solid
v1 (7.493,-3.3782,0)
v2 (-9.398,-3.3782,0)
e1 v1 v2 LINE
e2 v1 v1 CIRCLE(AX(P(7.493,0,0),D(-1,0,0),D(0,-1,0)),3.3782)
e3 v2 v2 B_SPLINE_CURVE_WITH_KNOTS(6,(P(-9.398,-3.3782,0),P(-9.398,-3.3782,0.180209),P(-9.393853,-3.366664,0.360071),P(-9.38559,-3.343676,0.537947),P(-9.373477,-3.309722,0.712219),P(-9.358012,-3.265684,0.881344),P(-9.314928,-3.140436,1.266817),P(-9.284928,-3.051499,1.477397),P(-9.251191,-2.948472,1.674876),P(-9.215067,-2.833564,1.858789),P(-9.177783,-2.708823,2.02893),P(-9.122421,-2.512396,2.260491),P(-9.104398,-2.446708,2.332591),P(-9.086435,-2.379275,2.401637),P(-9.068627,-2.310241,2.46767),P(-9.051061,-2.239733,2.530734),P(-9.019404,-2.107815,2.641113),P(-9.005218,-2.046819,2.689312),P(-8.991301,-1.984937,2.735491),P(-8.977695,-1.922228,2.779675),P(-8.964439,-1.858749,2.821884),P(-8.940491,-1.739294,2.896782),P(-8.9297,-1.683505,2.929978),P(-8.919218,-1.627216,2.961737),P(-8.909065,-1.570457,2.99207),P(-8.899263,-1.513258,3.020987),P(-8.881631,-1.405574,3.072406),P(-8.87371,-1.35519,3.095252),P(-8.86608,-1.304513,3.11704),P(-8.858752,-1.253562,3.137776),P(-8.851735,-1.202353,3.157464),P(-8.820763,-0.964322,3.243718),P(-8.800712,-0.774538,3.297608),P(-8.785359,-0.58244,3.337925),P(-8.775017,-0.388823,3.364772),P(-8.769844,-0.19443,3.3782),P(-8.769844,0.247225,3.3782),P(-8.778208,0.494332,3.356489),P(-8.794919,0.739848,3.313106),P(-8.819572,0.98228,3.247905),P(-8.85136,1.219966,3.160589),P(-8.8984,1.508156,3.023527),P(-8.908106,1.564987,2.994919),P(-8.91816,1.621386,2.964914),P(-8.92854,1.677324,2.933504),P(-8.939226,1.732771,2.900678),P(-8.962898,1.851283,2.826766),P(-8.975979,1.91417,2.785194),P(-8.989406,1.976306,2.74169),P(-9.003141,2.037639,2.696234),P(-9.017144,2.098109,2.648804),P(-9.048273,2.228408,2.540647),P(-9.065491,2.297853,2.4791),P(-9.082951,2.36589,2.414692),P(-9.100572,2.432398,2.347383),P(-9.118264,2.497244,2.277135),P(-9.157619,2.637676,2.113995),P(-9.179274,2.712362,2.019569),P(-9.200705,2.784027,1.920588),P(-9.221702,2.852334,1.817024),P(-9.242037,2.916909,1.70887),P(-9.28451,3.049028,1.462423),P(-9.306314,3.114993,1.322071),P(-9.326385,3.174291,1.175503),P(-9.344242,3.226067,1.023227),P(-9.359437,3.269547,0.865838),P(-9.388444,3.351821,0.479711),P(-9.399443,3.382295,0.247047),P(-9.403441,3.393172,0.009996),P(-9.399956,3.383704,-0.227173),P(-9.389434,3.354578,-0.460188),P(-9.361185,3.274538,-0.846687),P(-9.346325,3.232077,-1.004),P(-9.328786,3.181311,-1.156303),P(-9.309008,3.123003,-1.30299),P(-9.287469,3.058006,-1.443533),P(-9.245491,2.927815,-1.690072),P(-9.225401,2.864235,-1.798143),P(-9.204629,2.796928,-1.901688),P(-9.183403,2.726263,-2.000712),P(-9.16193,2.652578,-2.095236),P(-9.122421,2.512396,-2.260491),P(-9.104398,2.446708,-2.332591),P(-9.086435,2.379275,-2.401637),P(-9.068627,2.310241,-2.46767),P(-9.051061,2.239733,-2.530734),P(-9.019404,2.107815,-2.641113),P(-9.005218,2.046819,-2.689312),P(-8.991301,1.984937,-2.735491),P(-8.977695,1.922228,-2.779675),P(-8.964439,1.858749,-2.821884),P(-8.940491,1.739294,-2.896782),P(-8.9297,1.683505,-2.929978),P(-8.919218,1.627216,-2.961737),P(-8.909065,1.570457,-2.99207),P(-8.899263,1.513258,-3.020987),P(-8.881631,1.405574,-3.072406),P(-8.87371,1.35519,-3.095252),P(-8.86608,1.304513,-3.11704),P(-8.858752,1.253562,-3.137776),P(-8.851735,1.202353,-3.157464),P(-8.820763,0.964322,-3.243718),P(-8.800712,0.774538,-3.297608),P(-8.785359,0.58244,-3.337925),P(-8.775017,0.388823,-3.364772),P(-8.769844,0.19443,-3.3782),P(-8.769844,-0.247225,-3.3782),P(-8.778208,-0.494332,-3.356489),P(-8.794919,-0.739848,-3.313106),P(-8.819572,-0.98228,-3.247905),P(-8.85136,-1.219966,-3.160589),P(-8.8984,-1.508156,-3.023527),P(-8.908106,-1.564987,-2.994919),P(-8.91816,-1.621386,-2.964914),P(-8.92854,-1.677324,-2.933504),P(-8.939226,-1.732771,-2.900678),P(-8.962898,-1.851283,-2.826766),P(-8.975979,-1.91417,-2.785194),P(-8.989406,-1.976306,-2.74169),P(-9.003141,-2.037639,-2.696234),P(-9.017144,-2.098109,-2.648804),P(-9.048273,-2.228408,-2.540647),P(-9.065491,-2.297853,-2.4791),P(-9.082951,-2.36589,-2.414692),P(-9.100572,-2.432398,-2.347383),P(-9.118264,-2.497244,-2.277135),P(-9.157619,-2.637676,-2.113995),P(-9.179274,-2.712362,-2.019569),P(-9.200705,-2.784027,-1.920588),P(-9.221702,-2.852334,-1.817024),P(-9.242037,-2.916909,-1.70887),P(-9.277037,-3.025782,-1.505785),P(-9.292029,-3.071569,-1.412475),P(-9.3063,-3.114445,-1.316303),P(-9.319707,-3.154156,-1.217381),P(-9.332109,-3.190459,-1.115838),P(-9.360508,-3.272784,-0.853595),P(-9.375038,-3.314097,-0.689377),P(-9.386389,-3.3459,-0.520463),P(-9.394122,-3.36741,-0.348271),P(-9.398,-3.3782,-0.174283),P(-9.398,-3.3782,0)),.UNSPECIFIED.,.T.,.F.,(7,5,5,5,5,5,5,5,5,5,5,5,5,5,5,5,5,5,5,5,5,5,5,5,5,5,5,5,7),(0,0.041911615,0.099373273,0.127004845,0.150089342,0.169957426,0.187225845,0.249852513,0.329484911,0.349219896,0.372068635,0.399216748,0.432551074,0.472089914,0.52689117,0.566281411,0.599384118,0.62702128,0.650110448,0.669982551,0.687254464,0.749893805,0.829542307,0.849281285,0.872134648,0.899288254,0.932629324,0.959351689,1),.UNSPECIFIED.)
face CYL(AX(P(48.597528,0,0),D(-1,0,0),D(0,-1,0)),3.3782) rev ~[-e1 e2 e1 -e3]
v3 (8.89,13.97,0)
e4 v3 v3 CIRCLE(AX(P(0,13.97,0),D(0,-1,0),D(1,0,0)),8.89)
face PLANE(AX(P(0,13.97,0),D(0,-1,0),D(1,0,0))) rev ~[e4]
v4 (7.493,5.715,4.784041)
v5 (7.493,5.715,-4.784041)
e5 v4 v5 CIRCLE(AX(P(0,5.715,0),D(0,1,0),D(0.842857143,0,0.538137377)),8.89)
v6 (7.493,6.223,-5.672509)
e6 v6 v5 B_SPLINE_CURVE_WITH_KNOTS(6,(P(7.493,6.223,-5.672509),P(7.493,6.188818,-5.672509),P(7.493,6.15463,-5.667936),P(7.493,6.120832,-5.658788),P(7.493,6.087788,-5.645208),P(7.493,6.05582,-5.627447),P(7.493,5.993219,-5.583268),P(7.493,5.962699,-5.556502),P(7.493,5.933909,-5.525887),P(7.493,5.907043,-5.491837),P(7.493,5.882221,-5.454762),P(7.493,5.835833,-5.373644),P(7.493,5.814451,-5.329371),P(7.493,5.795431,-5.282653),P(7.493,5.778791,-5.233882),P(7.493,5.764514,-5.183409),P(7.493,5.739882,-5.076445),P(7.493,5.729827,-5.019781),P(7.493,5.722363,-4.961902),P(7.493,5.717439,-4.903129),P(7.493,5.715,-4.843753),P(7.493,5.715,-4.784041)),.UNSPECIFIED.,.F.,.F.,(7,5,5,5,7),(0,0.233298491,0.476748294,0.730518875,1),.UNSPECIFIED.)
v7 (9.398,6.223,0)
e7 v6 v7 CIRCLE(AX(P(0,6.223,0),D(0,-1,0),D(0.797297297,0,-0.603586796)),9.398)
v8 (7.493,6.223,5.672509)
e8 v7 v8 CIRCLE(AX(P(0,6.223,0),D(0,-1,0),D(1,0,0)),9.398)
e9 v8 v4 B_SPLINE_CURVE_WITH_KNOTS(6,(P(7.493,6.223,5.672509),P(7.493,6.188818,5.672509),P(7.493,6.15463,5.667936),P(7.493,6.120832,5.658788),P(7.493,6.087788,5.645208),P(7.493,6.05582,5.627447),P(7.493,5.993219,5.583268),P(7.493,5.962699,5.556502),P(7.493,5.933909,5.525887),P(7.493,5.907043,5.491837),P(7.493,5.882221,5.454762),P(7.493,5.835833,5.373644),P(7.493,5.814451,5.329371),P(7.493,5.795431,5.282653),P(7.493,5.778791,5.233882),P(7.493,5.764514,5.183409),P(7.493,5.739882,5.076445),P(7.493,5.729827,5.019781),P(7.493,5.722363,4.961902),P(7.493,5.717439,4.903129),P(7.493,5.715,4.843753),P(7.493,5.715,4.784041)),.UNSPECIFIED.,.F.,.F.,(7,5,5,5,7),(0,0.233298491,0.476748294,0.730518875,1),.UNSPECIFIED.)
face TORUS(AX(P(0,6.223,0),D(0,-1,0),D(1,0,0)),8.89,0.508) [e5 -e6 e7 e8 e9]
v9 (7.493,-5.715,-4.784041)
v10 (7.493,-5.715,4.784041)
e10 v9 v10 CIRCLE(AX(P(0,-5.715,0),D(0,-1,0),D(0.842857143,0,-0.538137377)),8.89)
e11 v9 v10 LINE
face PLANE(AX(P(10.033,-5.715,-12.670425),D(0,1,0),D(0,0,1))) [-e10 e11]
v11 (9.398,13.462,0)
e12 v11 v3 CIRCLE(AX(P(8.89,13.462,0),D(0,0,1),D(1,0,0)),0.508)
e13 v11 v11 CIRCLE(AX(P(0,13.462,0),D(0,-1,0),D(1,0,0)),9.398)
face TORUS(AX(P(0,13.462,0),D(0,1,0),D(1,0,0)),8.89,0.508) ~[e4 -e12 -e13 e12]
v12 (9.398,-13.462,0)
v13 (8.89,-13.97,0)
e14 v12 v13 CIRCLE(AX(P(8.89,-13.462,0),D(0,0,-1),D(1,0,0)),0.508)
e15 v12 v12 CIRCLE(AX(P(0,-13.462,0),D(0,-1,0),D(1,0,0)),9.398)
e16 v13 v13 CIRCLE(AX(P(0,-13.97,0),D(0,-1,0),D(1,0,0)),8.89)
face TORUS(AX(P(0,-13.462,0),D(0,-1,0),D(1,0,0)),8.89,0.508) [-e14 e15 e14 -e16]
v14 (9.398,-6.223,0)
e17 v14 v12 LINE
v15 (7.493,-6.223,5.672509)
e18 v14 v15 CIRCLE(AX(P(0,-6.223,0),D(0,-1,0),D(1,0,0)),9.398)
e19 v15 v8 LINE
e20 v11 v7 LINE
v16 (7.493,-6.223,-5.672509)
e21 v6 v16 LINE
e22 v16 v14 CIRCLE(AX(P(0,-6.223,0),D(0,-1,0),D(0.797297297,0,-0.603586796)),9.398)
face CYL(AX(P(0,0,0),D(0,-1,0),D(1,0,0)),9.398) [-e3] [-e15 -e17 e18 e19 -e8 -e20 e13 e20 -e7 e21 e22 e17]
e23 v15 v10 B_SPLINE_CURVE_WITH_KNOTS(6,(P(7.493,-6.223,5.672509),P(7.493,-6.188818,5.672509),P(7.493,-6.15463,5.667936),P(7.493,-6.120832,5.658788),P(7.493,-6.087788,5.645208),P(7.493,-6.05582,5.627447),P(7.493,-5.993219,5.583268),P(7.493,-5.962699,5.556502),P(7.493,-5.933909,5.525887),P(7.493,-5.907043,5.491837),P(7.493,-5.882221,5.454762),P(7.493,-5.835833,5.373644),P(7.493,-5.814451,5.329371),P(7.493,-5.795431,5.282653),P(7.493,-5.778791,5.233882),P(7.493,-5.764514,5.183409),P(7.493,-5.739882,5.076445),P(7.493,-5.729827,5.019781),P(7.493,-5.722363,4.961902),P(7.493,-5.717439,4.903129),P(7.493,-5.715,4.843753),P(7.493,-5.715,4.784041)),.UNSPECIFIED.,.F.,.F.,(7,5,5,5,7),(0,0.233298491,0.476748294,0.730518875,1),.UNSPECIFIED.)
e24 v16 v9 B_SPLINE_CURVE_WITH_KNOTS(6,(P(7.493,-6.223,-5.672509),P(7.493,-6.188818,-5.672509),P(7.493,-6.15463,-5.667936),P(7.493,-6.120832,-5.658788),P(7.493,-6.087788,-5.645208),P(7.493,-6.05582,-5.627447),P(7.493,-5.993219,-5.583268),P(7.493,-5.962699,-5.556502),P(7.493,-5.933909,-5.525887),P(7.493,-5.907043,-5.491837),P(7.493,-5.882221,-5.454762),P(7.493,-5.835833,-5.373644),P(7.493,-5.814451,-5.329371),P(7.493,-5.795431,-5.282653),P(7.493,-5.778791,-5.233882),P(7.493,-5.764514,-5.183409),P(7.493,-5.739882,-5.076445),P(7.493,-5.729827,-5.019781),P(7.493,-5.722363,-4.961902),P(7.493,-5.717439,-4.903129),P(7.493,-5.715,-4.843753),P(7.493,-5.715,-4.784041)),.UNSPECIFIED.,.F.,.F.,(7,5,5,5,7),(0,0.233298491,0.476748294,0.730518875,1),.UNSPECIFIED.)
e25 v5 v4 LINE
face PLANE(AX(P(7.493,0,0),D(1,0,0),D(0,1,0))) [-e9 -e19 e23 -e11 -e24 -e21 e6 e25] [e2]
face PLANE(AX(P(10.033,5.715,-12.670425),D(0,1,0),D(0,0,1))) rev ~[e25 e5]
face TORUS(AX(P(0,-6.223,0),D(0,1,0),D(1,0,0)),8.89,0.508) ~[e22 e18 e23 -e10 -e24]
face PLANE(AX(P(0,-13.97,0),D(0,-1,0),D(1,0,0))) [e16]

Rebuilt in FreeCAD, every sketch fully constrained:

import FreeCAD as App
import Part
import Sketcher

V = App.Vector
Q = App.Units.Quantity


def edges_at(feature, points):
    """Names of the edges that pass closest to the given points."""
    edges = feature.Shape.Edges
    near = lambda p: min(range(len(edges)), key=lambda i: edges[i].distToShape(Part.Vertex(*p))[0])
    return sorted({f"Edge{near(p) + 1}" for p in points})


def add_polygon(sketch, points):
    """Adds a closed chain of lines whose ends are joined by coincident constraints."""
    first, n = sketch.GeometryCount, len(points)
    for a, b in zip(points, points[1:] + points[:1]):
        sketch.addGeometry(Part.LineSegment(App.Vector(*a, 0), App.Vector(*b, 0)), False)
    for i in range(n):
        sketch.addConstraint(Sketcher.Constraint("Coincident", first + i, 2, first + (i + 1) % n, 1))

doc = App.newDocument("Part")
body = doc.addObject("PartDesign::Body", "Body")

sketch1 = body.newObject("Sketcher::SketchObject", "Sketch")
sketch1.AttachmentSupport = (doc.getObject("XZ_Plane"), [""])
sketch1.MapMode = "FlatFace"
sketch1.addGeometry(Part.Circle(V(0, 0, 0), V(0, 0, 1), 9), False)
sketch1.addConstraint(Sketcher.Constraint("Coincident", 0, 3, -1, 1))
sketch1.addConstraint(Sketcher.Constraint("Diameter", 0, Q("0.74 in")))
pad1 = body.newObject("PartDesign::Pad", "Pad")
pad1.Profile = sketch1
pad1.Type = "TwoLengths"
pad1.Length = Q("0.55 in")
pad1.Length2 = Q("0.55 in")

sketch2 = body.newObject("Sketcher::SketchObject", "Sketch001")
sketch2.AttachmentSupport = (doc.getObject("YZ_Plane"), [""])
sketch2.MapMode = "FlatFace"
sketch2.AttachmentOffset = App.Placement(V(0, 0, 0.395 * 25.4), App.Rotation())
sketch2.addGeometry(Part.Circle(V(0, 0, 0), V(0, 0, 1), 3.4), False)
sketch2.addConstraint(Sketcher.Constraint("Coincident", 0, 3, -1, 1))
sketch2.addConstraint(Sketcher.Constraint("Diameter", 0, Q("0.266 in")))
doc.recompute()
hole = body.newObject("PartDesign::Hole", "Hole")
hole.Profile = sketch2
hole.ThreadType = "None"
hole.Diameter = Q("0.266 in")
hole.DepthType = "ThroughAll"

sketch3 = body.newObject("Sketcher::SketchObject", "Sketch002")
sketch3.AttachmentSupport = (doc.getObject("YZ_Plane"), [""])
sketch3.MapMode = "FlatFace"
sketch3.AttachmentOffset = App.Placement(V(0, 0, 0.395 * 25.4), App.Rotation())
add_polygon(sketch3, [(-6, 13), (-6, -13), (6, -13), (6, 13)])
sketch3.addConstraint(Sketcher.Constraint("Vertical", 0))
sketch3.addConstraint(Sketcher.Constraint("Horizontal", 1))
sketch3.addConstraint(Sketcher.Constraint("Vertical", 2))
sketch3.addConstraint(Sketcher.Constraint("Horizontal", 3))
sketch3.addConstraint(Sketcher.Constraint("Symmetric", 0, 2, 2, 2, -1, 1))
sketch3.addConstraint(Sketcher.Constraint("DistanceX", 1, 1, 1, 2, Q("0.45 in")))
sketch3.addConstraint(Sketcher.Constraint("DistanceY", 0, 2, 0, 1, 25.340851))
pocket1 = body.newObject("PartDesign::Pocket", "Pocket")
pocket1.Profile = sketch3
pocket1.Length = Q("0.1 in")
doc.recompute()

fillet = body.newObject("PartDesign::Fillet", "Fillet")
fillet.Base = (pocket1, edges_at(pocket1, [
    (-9.398, 13.97, 0),
    (-9.398, -13.97, 0),
    (8.909, 5.715, 2.992),
    (8.909, 5.715, -2.992),
    (8.909, -5.715, 2.992),
    (8.909, -5.715, -2.992),
]))
fillet.Radius = Q("0.02 in")

doc.recompute()
